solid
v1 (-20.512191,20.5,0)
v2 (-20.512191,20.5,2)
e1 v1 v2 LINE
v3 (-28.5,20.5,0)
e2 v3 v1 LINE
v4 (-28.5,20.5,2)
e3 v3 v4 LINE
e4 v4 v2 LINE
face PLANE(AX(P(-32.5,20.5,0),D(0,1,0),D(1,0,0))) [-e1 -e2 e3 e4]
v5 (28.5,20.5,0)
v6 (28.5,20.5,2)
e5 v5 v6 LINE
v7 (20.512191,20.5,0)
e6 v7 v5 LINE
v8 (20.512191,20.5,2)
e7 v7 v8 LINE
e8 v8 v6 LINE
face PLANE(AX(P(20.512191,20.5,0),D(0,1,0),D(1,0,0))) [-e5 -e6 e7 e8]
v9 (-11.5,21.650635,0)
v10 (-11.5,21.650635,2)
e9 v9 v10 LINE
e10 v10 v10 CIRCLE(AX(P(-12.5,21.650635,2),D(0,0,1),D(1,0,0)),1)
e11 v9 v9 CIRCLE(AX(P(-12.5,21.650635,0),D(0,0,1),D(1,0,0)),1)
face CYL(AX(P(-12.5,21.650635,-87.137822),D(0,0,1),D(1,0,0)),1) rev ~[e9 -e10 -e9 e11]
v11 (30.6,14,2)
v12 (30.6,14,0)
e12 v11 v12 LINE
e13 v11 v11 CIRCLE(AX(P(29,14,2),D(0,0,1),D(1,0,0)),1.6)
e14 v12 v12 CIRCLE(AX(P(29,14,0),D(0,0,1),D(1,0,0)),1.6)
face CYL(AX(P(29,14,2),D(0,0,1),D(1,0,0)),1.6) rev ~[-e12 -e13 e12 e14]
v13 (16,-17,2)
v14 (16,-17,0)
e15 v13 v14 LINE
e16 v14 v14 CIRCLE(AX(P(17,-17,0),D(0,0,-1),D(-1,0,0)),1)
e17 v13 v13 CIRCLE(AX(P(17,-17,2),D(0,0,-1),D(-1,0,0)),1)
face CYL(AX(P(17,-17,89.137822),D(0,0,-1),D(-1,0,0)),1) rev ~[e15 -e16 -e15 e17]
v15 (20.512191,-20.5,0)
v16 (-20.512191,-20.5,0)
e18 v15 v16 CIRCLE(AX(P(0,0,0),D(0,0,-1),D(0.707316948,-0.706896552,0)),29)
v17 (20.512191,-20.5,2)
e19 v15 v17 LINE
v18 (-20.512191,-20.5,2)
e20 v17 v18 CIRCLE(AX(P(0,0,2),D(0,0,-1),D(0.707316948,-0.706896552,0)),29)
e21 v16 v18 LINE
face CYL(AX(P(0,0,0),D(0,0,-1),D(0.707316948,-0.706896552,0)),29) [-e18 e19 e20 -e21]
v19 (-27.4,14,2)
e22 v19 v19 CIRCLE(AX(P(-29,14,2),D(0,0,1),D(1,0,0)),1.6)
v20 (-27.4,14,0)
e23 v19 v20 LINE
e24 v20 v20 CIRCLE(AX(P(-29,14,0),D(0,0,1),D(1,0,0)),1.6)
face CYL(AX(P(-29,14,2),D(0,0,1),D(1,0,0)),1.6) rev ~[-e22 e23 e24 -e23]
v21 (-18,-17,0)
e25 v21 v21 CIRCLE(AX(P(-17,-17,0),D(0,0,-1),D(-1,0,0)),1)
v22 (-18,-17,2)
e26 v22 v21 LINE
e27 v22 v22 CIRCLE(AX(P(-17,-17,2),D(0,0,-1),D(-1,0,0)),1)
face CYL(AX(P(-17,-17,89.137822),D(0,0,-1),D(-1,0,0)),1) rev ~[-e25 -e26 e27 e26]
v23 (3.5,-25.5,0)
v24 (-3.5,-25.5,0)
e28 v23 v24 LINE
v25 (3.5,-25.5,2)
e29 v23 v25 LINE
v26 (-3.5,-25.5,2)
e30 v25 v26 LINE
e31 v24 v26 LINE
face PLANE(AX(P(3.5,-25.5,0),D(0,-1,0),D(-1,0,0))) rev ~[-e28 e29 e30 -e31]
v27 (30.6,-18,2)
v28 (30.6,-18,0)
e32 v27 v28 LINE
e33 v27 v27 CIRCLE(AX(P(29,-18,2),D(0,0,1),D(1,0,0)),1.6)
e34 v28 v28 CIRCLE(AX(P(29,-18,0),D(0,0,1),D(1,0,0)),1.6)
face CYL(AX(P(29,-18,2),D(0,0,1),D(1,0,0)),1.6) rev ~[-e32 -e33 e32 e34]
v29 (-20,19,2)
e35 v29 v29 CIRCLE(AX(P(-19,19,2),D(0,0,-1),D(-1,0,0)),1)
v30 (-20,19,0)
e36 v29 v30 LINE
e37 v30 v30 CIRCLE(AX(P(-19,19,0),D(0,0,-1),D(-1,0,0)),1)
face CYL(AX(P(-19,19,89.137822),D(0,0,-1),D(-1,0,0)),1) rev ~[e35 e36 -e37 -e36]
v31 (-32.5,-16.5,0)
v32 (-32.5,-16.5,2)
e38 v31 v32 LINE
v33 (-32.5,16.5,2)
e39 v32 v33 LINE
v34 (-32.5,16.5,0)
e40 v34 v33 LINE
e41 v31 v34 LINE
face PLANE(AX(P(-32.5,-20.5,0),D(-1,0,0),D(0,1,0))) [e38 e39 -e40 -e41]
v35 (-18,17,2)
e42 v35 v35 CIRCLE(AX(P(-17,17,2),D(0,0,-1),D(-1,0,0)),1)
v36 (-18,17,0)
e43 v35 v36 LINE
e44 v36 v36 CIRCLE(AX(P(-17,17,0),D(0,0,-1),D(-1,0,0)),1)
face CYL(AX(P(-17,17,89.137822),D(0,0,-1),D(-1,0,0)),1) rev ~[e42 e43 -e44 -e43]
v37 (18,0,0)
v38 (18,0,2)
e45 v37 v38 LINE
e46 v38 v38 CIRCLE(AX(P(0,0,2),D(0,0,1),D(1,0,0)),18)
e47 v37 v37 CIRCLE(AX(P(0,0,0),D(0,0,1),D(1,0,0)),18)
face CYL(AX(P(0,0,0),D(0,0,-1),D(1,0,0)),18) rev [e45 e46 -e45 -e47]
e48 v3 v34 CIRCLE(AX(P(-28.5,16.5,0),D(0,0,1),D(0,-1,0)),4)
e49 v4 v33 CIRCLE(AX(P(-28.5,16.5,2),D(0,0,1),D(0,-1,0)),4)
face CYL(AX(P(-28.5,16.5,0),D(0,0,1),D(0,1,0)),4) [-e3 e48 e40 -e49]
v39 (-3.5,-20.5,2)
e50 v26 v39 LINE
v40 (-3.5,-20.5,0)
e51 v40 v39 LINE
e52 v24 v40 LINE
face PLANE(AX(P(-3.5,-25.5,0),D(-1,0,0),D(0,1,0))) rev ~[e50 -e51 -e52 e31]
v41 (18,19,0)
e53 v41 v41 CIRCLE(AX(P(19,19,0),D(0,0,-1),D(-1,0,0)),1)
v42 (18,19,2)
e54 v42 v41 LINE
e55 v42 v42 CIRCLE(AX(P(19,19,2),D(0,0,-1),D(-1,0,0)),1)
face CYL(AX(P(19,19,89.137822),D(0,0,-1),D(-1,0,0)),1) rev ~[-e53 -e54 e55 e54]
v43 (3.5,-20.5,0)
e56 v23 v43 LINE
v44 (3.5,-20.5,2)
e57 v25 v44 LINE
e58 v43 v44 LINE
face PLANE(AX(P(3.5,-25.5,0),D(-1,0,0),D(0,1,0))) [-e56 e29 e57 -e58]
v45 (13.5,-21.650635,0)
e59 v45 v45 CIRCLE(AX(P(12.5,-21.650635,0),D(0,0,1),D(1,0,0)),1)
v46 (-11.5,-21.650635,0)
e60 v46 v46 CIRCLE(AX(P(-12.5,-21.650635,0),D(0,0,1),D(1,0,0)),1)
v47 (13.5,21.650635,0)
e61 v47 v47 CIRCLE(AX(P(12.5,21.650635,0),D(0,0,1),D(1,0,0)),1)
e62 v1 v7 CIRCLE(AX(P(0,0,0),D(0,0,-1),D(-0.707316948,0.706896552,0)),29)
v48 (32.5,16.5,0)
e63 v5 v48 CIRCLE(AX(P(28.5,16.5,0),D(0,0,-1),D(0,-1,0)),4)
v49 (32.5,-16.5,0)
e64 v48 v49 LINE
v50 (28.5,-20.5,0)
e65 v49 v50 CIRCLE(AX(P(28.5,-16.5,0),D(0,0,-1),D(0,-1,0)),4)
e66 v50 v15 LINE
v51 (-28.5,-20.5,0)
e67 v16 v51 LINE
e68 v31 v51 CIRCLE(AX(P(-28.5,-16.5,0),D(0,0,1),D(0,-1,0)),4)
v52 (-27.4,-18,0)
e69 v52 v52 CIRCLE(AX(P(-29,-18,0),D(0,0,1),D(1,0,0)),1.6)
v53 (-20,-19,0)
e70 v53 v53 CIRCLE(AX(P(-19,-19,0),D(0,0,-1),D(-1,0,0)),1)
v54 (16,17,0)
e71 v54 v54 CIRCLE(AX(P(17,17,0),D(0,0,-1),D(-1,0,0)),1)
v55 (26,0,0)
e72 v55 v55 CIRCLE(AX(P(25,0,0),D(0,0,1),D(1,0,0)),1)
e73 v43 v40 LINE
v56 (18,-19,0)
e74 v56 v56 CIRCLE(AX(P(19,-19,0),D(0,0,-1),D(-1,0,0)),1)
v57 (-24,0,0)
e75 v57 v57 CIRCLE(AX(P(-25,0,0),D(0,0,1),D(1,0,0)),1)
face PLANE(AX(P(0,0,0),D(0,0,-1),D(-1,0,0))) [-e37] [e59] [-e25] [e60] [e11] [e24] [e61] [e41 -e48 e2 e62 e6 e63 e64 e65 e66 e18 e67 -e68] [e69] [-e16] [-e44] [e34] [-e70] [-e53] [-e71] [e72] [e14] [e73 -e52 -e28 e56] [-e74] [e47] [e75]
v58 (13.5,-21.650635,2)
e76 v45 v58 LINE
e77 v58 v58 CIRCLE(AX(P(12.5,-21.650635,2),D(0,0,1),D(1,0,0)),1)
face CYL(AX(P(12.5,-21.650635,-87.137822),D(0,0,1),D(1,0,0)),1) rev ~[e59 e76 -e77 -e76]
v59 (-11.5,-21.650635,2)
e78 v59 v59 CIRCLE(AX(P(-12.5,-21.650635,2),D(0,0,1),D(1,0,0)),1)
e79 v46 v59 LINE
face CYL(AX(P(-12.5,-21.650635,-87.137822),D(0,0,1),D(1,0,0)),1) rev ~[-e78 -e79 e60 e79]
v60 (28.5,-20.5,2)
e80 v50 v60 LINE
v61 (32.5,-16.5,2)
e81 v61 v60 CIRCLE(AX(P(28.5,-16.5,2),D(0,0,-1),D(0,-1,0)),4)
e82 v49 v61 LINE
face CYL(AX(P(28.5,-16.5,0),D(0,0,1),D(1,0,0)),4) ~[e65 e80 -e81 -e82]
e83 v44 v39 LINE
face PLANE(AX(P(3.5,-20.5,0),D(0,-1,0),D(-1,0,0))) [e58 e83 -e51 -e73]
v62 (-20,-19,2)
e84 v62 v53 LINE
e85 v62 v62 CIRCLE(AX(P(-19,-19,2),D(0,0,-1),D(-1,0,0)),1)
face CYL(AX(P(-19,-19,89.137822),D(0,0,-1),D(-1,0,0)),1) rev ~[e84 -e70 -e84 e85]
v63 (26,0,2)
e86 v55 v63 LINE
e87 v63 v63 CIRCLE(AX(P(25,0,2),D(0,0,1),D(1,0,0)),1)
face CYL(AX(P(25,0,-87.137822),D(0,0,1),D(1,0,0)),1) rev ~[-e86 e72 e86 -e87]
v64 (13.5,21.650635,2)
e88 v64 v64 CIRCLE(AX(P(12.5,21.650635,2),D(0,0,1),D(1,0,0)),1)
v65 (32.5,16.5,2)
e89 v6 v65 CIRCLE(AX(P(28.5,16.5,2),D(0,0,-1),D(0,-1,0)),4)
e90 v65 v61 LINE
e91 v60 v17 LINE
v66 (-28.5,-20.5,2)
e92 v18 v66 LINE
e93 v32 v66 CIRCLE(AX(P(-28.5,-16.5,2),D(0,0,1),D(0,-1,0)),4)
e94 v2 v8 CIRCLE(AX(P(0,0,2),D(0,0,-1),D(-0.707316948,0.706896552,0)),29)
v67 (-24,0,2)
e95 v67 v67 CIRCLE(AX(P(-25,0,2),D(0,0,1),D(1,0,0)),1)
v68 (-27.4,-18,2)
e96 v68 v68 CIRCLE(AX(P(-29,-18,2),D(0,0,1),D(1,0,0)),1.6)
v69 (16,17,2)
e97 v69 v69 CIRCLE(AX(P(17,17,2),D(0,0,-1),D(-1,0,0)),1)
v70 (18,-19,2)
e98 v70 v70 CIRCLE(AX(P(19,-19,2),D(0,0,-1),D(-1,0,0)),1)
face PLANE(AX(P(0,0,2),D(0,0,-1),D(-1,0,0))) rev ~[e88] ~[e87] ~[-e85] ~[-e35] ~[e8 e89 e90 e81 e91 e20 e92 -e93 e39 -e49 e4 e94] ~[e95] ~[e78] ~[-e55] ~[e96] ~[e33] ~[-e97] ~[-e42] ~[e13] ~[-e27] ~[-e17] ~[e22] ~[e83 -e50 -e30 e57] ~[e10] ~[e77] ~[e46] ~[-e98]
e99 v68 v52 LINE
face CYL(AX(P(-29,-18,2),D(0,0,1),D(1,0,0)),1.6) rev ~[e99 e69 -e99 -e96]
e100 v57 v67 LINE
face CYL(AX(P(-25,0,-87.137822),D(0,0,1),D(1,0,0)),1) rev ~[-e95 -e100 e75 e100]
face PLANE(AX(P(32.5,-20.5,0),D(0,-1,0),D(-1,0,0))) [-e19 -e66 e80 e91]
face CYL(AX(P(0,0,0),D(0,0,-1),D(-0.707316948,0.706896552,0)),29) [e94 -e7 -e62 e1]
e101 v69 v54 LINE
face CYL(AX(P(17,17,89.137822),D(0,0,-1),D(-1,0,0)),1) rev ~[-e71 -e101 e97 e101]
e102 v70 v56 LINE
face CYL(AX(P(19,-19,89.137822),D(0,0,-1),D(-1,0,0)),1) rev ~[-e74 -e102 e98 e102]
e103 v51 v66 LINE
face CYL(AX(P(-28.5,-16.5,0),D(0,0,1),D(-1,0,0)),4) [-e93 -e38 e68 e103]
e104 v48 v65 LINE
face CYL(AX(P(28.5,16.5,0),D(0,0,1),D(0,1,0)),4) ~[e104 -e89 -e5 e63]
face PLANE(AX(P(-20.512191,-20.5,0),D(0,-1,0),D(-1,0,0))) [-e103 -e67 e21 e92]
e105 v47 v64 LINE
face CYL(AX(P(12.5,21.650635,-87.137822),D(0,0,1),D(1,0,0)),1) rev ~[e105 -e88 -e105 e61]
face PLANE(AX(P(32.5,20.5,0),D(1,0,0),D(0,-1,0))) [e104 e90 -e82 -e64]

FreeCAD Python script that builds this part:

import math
import FreeCAD as App
import Part
import Sketcher

V = App.Vector
Q = App.Units.Quantity


def edges_at(feature, points):
    """Names of the edges that pass closest to the given points."""
    edges = feature.Shape.Edges
    near = lambda p: min(range(len(edges)), key=lambda i: edges[i].distToShape(Part.Vertex(*p))[0])
    return sorted({f"Edge{near(p) + 1}" for p in points})

doc = App.newDocument("Part")
body = doc.addObject("PartDesign::Body", "Body")

# Sketch on XY plane
sketch1 = doc.addObject("Sketcher::SketchObject", "Sketch")
body.addObject(sketch1)
sketch1.AttachmentSupport = (doc.XY_Plane, [""])
sketch1.MapMode = "FlatFace"
sketch1.addGeometry([
    Part.LineSegment(V(-20.512191, 20.5, 0), V(-32.5, 20.5, 0)),  # 0
    Part.LineSegment(V(-32.5, 20.5, 0), V(-32.5, -20.5, 0)),  # 1
    Part.LineSegment(V(-32.5, -20.5, 0), V(-20.512191, -20.5, 0)),  # 2
    Part.ArcOfCircle(Part.Circle(V(0, 0, 0), V(0, 0, 1), 29), math.radians(-135.017032), math.radians(-44.982968)),  # 3
    Part.LineSegment(V(20.512191, -20.5, 0), V(32.5, -20.5, 0)),  # 4
    Part.LineSegment(V(32.5, -20.5, 0), V(32.5, 20.5, 0)),  # 5
    Part.LineSegment(V(32.5, 20.5, 0), V(20.512191, 20.5, 0)),  # 6
    Part.ArcOfCircle(Part.Circle(V(0, 0, 0), V(0, 0, 1), 29), math.radians(44.982968), math.radians(135.017032)),  # 7
    Part.Circle(V(0, 0, 0), V(0, 0, 1), 18),  # 8
], False)
sketch1.addConstraint([
    Sketcher.Constraint("Coincident", 0, 2, 1, 1),
    Sketcher.Constraint("Coincident", 1, 2, 2, 1),
    Sketcher.Constraint("Coincident", 2, 2, 3, 1),
    Sketcher.Constraint("Coincident", 3, 2, 4, 1),
    Sketcher.Constraint("Coincident", 4, 2, 5, 1),
    Sketcher.Constraint("Coincident", 5, 2, 6, 1),
    Sketcher.Constraint("Coincident", 6, 2, 7, 1),
    Sketcher.Constraint("Coincident", 7, 2, 0, 1),
    Sketcher.Constraint("Horizontal", 0),
    Sketcher.Constraint("Vertical", 1),
    Sketcher.Constraint("Horizontal", 2),
    Sketcher.Constraint("Horizontal", 4),
    Sketcher.Constraint("Vertical", 5),
    Sketcher.Constraint("Horizontal", 6),
    Sketcher.Constraint("Coincident", 3, 3, -1, 1),
    Sketcher.Constraint("Coincident", 7, 3, -1, 1),
    Sketcher.Constraint("Coincident", 8, 3, -1, 1),
    Sketcher.Constraint("Equal", 3, 7),
    Sketcher.Constraint("Symmetric", 0, 2, 4, 2, -1, 1),
    Sketcher.Constraint("Horizontal", 2, 2, 3, 2),
    Sketcher.Constraint("Horizontal", 0, 2, 5, 2),
    Sketcher.Constraint("Diameter", 8, Q("36 mm")),
    Sketcher.Constraint("Radius", 3, Q("29 mm")),
    Sketcher.Constraint("DistanceY", 1, 2, 1, 1, Q("41 mm")),
    Sketcher.Constraint("DistanceX", 0, 2, -1, 1, Q("32.5 mm")),
])
pad1 = doc.addObject("PartDesign::Pad", "Pad")
body.addObject(pad1)
pad1.Profile = sketch1
pad1.Length = 2

# Sketch on XY plane
sketch2 = doc.addObject("Sketcher::SketchObject", "Sketch001")
body.addObject(sketch2)
sketch2.AttachmentSupport = (doc.XY_Plane, [""])
sketch2.MapMode = "FlatFace"
sketch2.AttachmentOffset = App.Placement(V(0, 0, 2), App.Rotation())
sketch2.addGeometry([
    Part.Circle(V(-29, 14, 0), V(0, 0, 1), 1.6),
    Part.Circle(V(-29, -18, 0), V(0, 0, 1), 1.6),
    Part.Circle(V(29, -18, 0), V(0, 0, 1), 1.6),
    Part.Circle(V(29, 14, 0), V(0, 0, 1), 1.6),
], False)
sketch2.addConstraint([
    Sketcher.Constraint("Equal", 0, 1),
    Sketcher.Constraint("Equal", 1, 2),
    Sketcher.Constraint("Equal", 2, 3),
    Sketcher.Constraint("Symmetric", 1, 3, 2, 3, -2),
    Sketcher.Constraint("Symmetric", 0, 3, 3, 3, -2),
    Sketcher.Constraint("Vertical", 0, 3, 1, 3),
    Sketcher.Constraint("Diameter", 0, Q("3.2 mm")),
    Sketcher.Constraint("DistanceX", 0, 3, -1, 1, Q("29 mm")),
    Sketcher.Constraint("DistanceY", -1, 1, 0, 3, Q("14 mm")),
    Sketcher.Constraint("DistanceY", 1, 3, -1, 1, Q("18 mm")),
])
pocket1 = doc.addObject("PartDesign::Pocket", "Pocket")
body.addObject(pocket1)
pocket1.Profile = sketch2
pocket1.Length = 2

# Sketch on XY plane
sketch3 = doc.addObject("Sketcher::SketchObject", "Sketch002")
body.addObject(sketch3)
sketch3.AttachmentSupport = (doc.XY_Plane, [""])
sketch3.MapMode = "FlatFace"
sketch3.AttachmentOffset = App.Placement(V(0, 0, 2), App.Rotation())
sketch3.addGeometry([
    Part.Circle(V(-19, 19, 0), V(0, 0, 1), 1),  # 0
    Part.Circle(V(-17, 17, 0), V(0, 0, 1), 1),  # 1
    Part.Circle(V(17, 17, 0), V(0, 0, 1), 1),  # 2
    Part.Circle(V(19, 19, 0), V(0, 0, 1), 1),  # 3
    Part.Circle(V(17, -17, 0), V(0, 0, 1), 1),  # 4
    Part.Circle(V(19, -19, 0), V(0, 0, 1), 1),  # 5
    Part.Circle(V(-19, -19, 0), V(0, 0, 1), 1),  # 6
    Part.Circle(V(-17, -17, 0), V(0, 0, 1), 1),  # 7
], False)
sketch3.addConstraint([
    Sketcher.Constraint("Equal", 0, 1),
    Sketcher.Constraint("Equal", 1, 2),
    Sketcher.Constraint("Equal", 2, 3),
    Sketcher.Constraint("Equal", 3, 4),
    Sketcher.Constraint("Equal", 4, 5),
    Sketcher.Constraint("Equal", 5, 6),
    Sketcher.Constraint("Equal", 6, 7),
    Sketcher.Constraint("Symmetric", 1, 3, 4, 3, -1, 1),
    Sketcher.Constraint("Symmetric", 0, 3, 5, 3, -1, 1),
    Sketcher.Constraint("Symmetric", 3, 3, 6, 3, -1, 1),
    Sketcher.Constraint("Symmetric", 2, 3, 7, 3, -1, 1),
    Sketcher.Constraint("Symmetric", 1, 3, 2, 3, -2),
    Sketcher.Constraint("Symmetric", 0, 3, 3, 3, -2),
    Sketcher.Constraint("Diameter", 0, Q("2 mm")),
    Sketcher.Constraint("DistanceX", 0, 3, -1, 1, Q("19 mm")),
    Sketcher.Constraint("DistanceY", -1, 1, 0, 3, Q("19 mm")),
    Sketcher.Constraint("DistanceX", 1, 3, -1, 1, Q("17 mm")),
    Sketcher.Constraint("DistanceY", -1, 1, 1, 3, Q("17 mm")),
])
doc.recompute()
hole = doc.addObject("PartDesign::Hole", "Hole")
body.addObject(hole)
hole.Profile = sketch3
hole.ThreadType = "None"
hole.Diameter = 2
hole.DepthType = "ThroughAll"
doc.recompute()

fillet = doc.addObject("PartDesign::Fillet", "Fillet")
body.addObject(fillet)
fillet.Base = (hole, edges_at(hole, [
    (-32.5, -20.5, 1),
    (-32.5, 20.5, 1),
    (32.5, 20.5, 1),
    (32.5, -20.5, 1),
]))
fillet.Radius = 4

# Sketch on XY plane
sketch4 = doc.addObject("Sketcher::SketchObject", "Sketch003")
body.addObject(sketch4)
sketch4.AttachmentSupport = (doc.XY_Plane, [""])
sketch4.MapMode = "FlatFace"
sketch4.addGeometry([
    Part.LineSegment(V(3.5, -20.5, 0), V(3.5, -25.5, 0)),
    Part.LineSegment(V(3.5, -25.5, 0), V(-3.5, -25.5, 0)),
    Part.LineSegment(V(-3.5, -25.5, 0), V(-3.5, -20.5, 0)),
    Part.LineSegment(V(-3.5, -20.5, 0), V(3.5, -20.5, 0)),
], False)
sketch4.addConstraint([
    Sketcher.Constraint("Coincident", 0, 2, 1, 1),
    Sketcher.Constraint("Coincident", 1, 2, 2, 1),
    Sketcher.Constraint("Coincident", 2, 2, 3, 1),
    Sketcher.Constraint("Coincident", 3, 2, 0, 1),
    Sketcher.Constraint("Vertical", 0),
    Sketcher.Constraint("Horizontal", 1),
    Sketcher.Constraint("Vertical", 2),
    Sketcher.Constraint("Horizontal", 3),
    Sketcher.Constraint("DistanceX", 1, 2, 1, 1, Q("7 mm")),
    Sketcher.Constraint("DistanceY", 0, 2, 0, 1, Q("5 mm")),
    Sketcher.Constraint("DistanceX", -1, 1, 0, 2, Q("3.5 mm")),
    Sketcher.Constraint("DistanceY", 0, 2, -1, 1, Q("25.5 mm")),
])
pocket2 = doc.addObject("PartDesign::Pocket", "Pocket001")
body.addObject(pocket2)
pocket2.Profile = sketch4
pocket2.Type = "ThroughAll"
pocket2.Reversed = True

# Sketch on XY plane
sketch5 = doc.addObject("Sketcher::SketchObject", "Sketch004")
body.addObject(sketch5)
sketch5.AttachmentSupport = (doc.XY_Plane, [""])
sketch5.MapMode = "FlatFace"
sketch5.addGeometry([
    Part.Circle(V(12.5, 21.650635, 0), V(0, 0, 1), 1),  # 0
    Part.Circle(V(-12.5, 21.650635, 0), V(0, 0, 1), 1),  # 1
    Part.Circle(V(-25, 0, 0), V(0, 0, 1), 1),  # 2
    Part.Circle(V(-12.5, -21.650635, 0), V(0, 0, 1), 1),  # 3
    Part.Circle(V(12.5, -21.650635, 0), V(0, 0, 1), 1),  # 4
    Part.Circle(V(25, 0, 0), V(0, 0, 1), 1),  # 5
], False)
sketch5.addConstraint([
    Sketcher.Constraint("Equal", 0, 1),
    Sketcher.Constraint("Equal", 1, 2),
    Sketcher.Constraint("Equal", 2, 3),
    Sketcher.Constraint("Equal", 3, 4),
    Sketcher.Constraint("Equal", 4, 5),
    Sketcher.Constraint("Symmetric", 0, 3, 3, 3, -1, 1),
    Sketcher.Constraint("Symmetric", 1, 3, 4, 3, -1, 1),
    Sketcher.Constraint("Symmetric", 2, 3, 5, 3, -1, 1),
    Sketcher.Constraint("Symmetric", 0, 3, 1, 3, -2),
    Sketcher.Constraint("PointOnObject", 2, 3, -1),
    Sketcher.Constraint("Diameter", 0, Q("2 mm")),
    Sketcher.Constraint("DistanceX", 2, 3, -1, 1, Q("25 mm")),
    Sketcher.Constraint("DistanceX", 1, 3, 0, 3, Q("25 mm")),
    Sketcher.Constraint("DistanceY", 3, 3, 1, 3, Q("43.30127 mm")),
])
doc.recompute()
hole2 = doc.addObject("PartDesign::Hole", "Hole001")
body.addObject(hole2)
hole2.Profile = sketch5
hole2.ThreadType = "None"
hole2.Diameter = 2
hole2.DepthType = "ThroughAll"
hole2.Reversed = True

doc.recompute()
